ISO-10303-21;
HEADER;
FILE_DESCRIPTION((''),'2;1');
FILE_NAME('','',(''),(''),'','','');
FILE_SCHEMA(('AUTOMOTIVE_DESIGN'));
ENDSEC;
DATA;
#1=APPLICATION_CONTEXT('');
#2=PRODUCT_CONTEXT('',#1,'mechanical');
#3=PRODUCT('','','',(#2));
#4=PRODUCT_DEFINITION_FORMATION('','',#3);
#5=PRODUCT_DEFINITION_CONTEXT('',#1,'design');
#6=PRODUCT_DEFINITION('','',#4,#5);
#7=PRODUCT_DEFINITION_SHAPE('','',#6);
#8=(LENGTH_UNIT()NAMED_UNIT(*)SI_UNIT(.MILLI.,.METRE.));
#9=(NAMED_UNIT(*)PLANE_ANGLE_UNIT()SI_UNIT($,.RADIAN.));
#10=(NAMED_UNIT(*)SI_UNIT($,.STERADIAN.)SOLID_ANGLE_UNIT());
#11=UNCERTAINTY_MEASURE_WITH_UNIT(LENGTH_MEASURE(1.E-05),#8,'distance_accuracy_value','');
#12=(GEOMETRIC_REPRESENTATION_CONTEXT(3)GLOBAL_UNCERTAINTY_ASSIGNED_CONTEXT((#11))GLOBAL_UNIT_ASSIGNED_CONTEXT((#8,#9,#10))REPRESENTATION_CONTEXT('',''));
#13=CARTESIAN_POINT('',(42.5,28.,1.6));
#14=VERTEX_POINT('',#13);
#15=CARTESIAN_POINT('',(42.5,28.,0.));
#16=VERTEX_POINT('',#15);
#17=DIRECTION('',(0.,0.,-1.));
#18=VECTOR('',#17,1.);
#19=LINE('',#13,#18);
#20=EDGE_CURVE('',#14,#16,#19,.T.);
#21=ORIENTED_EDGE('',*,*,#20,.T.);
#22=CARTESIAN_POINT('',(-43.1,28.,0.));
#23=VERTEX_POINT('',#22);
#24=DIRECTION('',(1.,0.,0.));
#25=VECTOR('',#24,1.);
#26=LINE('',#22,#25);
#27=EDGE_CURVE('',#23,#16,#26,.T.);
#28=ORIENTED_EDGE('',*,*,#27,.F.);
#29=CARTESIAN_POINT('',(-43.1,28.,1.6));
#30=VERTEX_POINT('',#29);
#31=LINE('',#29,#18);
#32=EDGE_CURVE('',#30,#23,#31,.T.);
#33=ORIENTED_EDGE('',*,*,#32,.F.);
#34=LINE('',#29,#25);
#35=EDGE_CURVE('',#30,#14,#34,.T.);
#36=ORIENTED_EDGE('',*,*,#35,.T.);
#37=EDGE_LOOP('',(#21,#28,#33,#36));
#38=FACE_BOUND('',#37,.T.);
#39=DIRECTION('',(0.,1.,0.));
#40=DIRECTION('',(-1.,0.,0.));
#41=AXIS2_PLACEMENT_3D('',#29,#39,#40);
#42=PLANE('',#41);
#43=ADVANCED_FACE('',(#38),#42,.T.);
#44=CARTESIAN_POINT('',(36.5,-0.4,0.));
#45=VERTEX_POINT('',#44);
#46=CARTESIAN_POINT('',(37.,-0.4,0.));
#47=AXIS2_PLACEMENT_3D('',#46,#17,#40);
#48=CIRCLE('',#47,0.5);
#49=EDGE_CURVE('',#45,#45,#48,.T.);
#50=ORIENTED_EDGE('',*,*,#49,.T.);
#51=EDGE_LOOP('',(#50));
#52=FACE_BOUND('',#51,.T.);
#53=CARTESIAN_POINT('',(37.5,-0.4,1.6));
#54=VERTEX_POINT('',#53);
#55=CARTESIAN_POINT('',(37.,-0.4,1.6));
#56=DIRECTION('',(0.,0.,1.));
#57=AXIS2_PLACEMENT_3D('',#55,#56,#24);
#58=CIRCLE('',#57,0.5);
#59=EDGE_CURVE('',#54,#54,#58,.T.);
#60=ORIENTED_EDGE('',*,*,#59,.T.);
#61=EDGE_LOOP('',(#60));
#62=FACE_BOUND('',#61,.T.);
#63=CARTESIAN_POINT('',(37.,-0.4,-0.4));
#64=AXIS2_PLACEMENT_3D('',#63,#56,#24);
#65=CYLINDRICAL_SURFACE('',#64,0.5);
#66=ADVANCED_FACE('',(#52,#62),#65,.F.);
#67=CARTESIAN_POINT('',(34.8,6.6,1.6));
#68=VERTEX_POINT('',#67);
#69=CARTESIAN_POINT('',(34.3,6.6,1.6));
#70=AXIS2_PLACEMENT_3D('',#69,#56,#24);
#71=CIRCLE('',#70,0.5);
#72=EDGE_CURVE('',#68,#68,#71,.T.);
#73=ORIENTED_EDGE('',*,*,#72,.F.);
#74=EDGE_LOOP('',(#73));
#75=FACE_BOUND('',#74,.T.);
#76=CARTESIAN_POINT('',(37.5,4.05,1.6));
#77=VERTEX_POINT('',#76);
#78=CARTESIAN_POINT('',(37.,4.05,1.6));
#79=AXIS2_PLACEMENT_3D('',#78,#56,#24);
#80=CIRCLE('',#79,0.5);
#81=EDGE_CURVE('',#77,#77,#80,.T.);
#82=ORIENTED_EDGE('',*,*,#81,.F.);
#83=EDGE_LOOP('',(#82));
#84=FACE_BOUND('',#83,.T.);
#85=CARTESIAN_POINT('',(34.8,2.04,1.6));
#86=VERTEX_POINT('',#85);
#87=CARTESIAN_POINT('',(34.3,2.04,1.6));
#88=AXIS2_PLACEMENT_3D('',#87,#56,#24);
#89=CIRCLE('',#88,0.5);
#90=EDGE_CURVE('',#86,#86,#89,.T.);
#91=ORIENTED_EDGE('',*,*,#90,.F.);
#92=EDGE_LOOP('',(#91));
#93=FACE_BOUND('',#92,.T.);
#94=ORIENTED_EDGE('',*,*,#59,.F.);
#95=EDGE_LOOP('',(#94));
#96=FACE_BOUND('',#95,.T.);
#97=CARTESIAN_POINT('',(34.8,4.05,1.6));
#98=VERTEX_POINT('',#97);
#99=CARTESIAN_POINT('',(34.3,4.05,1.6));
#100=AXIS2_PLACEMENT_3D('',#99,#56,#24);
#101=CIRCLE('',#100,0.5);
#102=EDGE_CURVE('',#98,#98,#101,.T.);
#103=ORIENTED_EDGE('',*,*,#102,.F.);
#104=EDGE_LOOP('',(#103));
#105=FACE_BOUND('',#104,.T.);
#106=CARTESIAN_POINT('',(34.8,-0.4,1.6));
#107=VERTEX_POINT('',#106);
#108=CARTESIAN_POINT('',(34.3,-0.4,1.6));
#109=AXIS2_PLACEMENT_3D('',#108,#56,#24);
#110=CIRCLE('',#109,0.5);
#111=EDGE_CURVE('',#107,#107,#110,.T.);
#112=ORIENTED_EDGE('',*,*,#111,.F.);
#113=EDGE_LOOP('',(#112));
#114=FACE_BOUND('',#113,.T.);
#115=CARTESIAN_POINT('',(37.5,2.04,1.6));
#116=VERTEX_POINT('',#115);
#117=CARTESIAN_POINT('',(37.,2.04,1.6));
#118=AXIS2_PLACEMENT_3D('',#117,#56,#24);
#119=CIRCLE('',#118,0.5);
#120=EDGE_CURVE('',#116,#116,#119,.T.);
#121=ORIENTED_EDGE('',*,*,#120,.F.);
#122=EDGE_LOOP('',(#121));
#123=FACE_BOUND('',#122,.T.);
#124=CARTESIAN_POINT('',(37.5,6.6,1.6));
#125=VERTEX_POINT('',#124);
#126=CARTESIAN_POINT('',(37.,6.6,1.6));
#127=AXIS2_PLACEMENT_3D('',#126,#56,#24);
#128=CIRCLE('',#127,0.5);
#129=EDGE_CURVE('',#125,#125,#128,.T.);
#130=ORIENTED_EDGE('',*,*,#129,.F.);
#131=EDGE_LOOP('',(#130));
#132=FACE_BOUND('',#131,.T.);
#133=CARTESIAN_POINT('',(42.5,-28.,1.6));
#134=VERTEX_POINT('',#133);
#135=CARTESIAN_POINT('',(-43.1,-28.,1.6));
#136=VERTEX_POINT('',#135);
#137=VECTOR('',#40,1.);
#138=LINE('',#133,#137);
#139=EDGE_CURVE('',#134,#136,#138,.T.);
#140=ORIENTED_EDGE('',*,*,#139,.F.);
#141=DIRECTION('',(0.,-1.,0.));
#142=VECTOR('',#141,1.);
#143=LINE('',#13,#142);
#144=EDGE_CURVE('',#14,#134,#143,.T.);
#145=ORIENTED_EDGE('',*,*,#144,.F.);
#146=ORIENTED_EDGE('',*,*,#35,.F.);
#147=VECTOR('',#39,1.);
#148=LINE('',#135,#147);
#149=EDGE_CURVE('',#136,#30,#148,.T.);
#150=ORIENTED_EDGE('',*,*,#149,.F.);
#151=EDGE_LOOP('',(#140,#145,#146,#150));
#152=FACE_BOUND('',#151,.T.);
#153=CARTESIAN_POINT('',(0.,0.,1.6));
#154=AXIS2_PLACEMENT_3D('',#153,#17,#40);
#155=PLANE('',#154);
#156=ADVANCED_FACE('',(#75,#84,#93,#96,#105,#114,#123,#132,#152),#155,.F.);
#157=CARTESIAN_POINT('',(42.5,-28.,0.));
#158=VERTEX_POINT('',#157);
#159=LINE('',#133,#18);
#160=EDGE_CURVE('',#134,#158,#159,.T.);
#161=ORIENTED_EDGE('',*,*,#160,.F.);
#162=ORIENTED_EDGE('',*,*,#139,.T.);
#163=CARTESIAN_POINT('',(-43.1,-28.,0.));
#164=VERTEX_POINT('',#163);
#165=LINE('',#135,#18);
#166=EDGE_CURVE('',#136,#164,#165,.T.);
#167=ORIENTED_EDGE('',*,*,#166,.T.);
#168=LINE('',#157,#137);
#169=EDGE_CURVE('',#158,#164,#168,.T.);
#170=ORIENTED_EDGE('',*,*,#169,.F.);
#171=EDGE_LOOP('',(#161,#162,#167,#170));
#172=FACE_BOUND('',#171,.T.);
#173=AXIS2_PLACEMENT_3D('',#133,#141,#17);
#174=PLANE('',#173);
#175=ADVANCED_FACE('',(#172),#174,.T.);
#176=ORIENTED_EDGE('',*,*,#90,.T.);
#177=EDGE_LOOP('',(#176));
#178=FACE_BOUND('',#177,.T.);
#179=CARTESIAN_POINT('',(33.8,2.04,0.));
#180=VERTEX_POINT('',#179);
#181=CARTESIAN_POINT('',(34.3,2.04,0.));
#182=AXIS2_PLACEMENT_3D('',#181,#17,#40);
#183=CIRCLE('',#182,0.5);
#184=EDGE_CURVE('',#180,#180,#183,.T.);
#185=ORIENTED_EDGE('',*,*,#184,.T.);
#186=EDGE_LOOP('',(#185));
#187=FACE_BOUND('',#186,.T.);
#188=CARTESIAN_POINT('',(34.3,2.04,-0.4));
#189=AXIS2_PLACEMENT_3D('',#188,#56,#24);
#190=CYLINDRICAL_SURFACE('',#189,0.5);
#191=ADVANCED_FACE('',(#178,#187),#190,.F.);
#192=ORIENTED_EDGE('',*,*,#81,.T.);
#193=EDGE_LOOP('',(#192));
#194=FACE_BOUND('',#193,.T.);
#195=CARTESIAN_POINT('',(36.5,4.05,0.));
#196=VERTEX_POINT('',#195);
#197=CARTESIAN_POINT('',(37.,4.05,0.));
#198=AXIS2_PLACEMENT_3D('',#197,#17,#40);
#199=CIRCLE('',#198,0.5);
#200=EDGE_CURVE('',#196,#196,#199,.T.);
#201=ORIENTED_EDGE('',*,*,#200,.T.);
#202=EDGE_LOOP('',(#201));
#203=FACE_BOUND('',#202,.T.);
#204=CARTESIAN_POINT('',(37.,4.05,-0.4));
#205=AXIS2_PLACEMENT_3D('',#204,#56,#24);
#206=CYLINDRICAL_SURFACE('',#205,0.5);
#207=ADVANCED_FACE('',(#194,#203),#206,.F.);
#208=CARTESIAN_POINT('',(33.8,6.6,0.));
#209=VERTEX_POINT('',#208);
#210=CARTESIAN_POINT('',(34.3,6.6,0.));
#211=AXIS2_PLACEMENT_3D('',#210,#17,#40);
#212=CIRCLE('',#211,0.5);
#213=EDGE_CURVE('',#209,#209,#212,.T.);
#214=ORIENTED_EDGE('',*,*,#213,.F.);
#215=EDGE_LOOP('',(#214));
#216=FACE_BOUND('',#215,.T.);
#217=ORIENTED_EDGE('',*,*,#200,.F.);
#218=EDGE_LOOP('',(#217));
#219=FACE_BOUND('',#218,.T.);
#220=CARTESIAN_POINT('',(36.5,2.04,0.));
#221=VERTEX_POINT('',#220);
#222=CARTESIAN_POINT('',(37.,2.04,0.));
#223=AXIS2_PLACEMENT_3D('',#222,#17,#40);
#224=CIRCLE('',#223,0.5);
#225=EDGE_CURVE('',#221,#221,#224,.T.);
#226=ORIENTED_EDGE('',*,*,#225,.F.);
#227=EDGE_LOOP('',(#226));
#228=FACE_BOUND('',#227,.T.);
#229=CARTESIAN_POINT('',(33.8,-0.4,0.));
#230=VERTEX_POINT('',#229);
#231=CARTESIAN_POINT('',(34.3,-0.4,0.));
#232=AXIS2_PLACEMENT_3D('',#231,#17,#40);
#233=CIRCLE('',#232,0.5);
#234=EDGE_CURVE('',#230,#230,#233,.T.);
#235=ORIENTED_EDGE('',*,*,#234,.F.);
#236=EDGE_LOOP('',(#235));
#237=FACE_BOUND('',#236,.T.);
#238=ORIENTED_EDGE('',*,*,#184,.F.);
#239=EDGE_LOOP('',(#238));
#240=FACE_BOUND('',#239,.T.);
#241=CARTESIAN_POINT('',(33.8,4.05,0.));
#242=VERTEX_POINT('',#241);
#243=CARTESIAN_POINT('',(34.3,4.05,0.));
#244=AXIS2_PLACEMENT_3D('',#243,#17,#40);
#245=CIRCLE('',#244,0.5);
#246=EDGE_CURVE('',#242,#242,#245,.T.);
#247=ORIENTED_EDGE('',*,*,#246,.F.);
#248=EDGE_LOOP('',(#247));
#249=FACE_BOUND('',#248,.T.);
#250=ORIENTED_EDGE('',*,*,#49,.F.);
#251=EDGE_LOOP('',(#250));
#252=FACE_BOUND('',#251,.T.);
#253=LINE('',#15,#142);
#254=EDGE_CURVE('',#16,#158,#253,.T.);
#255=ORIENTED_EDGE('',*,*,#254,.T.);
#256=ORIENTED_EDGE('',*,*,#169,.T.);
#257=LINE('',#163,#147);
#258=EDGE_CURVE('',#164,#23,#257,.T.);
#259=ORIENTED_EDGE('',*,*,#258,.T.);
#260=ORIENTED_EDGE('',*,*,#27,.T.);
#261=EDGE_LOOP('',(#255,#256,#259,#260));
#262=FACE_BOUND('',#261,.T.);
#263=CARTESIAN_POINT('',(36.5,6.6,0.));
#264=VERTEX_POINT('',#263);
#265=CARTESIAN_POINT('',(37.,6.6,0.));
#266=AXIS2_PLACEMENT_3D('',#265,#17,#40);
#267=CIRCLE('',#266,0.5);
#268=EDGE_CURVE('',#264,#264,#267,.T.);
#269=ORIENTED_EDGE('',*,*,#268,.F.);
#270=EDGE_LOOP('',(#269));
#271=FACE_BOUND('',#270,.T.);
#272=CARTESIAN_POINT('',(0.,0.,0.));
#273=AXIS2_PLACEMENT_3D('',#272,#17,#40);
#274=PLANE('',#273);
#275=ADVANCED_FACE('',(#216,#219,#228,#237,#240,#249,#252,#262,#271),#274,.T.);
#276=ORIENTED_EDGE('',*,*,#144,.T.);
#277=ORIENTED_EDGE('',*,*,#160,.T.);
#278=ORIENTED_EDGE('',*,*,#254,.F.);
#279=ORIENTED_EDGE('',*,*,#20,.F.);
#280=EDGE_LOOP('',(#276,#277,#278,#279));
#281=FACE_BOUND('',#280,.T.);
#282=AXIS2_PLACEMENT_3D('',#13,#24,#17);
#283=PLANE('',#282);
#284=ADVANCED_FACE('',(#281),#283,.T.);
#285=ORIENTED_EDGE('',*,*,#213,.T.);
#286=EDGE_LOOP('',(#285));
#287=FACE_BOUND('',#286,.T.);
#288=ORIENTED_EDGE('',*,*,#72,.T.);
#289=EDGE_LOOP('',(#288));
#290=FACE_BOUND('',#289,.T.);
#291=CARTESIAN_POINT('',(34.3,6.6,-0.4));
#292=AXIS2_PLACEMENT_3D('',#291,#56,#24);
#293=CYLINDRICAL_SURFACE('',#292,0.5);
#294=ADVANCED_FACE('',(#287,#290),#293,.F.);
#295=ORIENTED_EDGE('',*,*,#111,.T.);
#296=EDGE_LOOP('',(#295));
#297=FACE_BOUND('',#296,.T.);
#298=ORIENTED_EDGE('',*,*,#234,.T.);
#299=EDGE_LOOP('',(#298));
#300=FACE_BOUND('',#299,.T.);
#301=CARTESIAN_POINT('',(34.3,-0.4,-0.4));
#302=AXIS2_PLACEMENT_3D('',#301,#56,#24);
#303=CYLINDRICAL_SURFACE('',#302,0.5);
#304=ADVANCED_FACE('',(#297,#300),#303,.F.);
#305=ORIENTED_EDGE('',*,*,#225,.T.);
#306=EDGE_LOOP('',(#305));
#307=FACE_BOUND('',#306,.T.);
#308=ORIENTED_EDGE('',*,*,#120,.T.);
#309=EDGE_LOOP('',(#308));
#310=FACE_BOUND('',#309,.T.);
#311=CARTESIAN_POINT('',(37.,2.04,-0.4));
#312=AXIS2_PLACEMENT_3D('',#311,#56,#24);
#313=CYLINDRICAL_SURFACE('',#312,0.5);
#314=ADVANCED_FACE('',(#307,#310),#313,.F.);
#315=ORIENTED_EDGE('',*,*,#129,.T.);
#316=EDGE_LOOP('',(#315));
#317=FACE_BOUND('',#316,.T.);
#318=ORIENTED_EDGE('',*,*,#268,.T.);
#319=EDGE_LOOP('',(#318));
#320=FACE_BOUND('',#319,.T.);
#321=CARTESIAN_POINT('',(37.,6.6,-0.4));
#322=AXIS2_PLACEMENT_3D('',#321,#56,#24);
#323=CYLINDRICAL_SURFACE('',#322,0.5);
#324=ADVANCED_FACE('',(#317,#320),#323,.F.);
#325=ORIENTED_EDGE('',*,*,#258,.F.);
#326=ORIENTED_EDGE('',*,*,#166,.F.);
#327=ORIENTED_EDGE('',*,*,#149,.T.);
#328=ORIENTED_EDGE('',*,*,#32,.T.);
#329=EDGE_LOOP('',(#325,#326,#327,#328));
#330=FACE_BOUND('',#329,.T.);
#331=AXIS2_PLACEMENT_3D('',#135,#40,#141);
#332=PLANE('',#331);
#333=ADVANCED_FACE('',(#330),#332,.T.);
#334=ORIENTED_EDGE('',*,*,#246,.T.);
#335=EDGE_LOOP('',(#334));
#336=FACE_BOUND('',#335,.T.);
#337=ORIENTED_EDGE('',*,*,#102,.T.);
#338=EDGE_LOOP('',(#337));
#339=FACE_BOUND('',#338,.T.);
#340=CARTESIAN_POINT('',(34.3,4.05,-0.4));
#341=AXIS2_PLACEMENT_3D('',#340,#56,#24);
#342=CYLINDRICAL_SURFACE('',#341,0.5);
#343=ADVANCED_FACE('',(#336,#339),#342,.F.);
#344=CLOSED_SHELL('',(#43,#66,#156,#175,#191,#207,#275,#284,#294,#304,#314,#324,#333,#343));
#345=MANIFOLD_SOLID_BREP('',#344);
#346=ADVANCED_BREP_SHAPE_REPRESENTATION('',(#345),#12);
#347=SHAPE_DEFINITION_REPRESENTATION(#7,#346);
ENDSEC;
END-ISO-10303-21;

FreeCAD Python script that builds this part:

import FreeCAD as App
import Part
import Sketcher

V = App.Vector
Q = App.Units.Quantity


def add_polygon(sketch, points):
    """Adds a closed chain of lines whose ends are joined by coincident constraints."""
    first, n = sketch.GeometryCount, len(points)
    for a, b in zip(points, points[1:] + points[:1]):
        sketch.addGeometry(Part.LineSegment(App.Vector(*a, 0), App.Vector(*b, 0)), False)
    for i in range(n):
        sketch.addConstraint(Sketcher.Constraint("Coincident", first + i, 2, first + (i + 1) % n, 1))

doc = App.newDocument("Part")
body = doc.addObject("PartDesign::Body", "Body")

sketch1 = body.newObject("Sketcher::SketchObject", "Sketch")
sketch1.AttachmentSupport = (doc.getObject("XY_Plane"), [""])
sketch1.MapMode = "FlatFace"
add_polygon(sketch1, [(42, 28), (42, -28), (-43, -28), (-43, 28)])
sketch1.addConstraint(Sketcher.Constraint("Vertical", 0))
sketch1.addConstraint(Sketcher.Constraint("Horizontal", 1))
sketch1.addConstraint(Sketcher.Constraint("Vertical", 2))
sketch1.addConstraint(Sketcher.Constraint("Horizontal", 3))
sketch1.addConstraint(Sketcher.Constraint("DistanceY", 0, 2, 0, 1, Q("56 mm")))
sketch1.addConstraint(Sketcher.Constraint("DistanceX", 1, 2, 1, 1, Q("85.6 mm")))
sketch1.addConstraint(Sketcher.Constraint("DistanceY", 0, 2, -1, 1, Q("28 mm")))
sketch1.addConstraint(Sketcher.Constraint("DistanceX", -1, 1, 0, 2, Q("42.5 mm")))
pad1 = body.newObject("PartDesign::Pad", "Pad")
pad1.Profile = sketch1
pad1.Length = 1.6

sketch2 = body.newObject("Sketcher::SketchObject", "Sketch001")
sketch2.AttachmentSupport = (doc.getObject("XY_Plane"), [""])
sketch2.MapMode = "FlatFace"
sketch2.AttachmentOffset = App.Placement(V(0, 0, 1.6), App.Rotation())
sketch2.addGeometry(Part.Circle(V(37, 6.6, 0), V(0, 0, 1), 0.5), False)
sketch2.addGeometry(Part.Circle(V(34.3, 6.6, 0), V(0, 0, 1), 0.5), False)
sketch2.addGeometry(Part.Circle(V(34.3, 4, 0), V(0, 0, 1), 0.5), False)
sketch2.addGeometry(Part.Circle(V(34.3, 2, 0), V(0, 0, 1), 0.5), False)
sketch2.addGeometry(Part.Circle(V(34.3, -0.4, 0), V(0, 0, 1), 0.5), False)
sketch2.addGeometry(Part.Circle(V(37, 4, 0), V(0, 0, 1), 0.5), False)
sketch2.addGeometry(Part.Circle(V(37, 2, 0), V(0, 0, 1), 0.5), False)
sketch2.addGeometry(Part.Circle(V(37, -0.4, 0), V(0, 0, 1), 0.5), False)
sketch2.addConstraint(Sketcher.Constraint("Equal", 0, 1))
sketch2.addConstraint(Sketcher.Constraint("Equal", 1, 2))
sketch2.addConstraint(Sketcher.Constraint("Equal", 2, 3))
sketch2.addConstraint(Sketcher.Constraint("Equal", 3, 4))
sketch2.addConstraint(Sketcher.Constraint("Equal", 4, 5))
sketch2.addConstraint(Sketcher.Constraint("Equal", 5, 6))
sketch2.addConstraint(Sketcher.Constraint("Equal", 6, 7))
sketch2.addConstraint(Sketcher.Constraint("Horizontal", 0, 3, 1, 3))
sketch2.addConstraint(Sketcher.Constraint("Horizontal", 2, 3, 5, 3))
sketch2.addConstraint(Sketcher.Constraint("Horizontal", 3, 3, 6, 3))
sketch2.addConstraint(Sketcher.Constraint("Horizontal", 4, 3, 7, 3))
sketch2.addConstraint(Sketcher.Constraint("Vertical", 1, 3, 2, 3))
sketch2.addConstraint(Sketcher.Constraint("Vertical", 2, 3, 3, 3))
sketch2.addConstraint(Sketcher.Constraint("Vertical", 3, 3, 4, 3))
sketch2.addConstraint(Sketcher.Constraint("Vertical", 0, 3, 5, 3))
sketch2.addConstraint(Sketcher.Constraint("Vertical", 5, 3, 6, 3))
sketch2.addConstraint(Sketcher.Constraint("Vertical", 6, 3, 7, 3))
sketch2.addConstraint(Sketcher.Constraint("Diameter", 0, Q("1 mm")))
sketch2.addConstraint(Sketcher.Constraint("DistanceX", -1, 1, 0, 3, Q("37 mm")))
sketch2.addConstraint(Sketcher.Constraint("DistanceY", 4, 3, 1, 3, Q("7 mm")))
sketch2.addConstraint(Sketcher.Constraint("DistanceY", -1, 1, 0, 3, Q("6.6 mm")))
sketch2.addConstraint(Sketcher.Constraint("DistanceX", -1, 1, 1, 3, Q("34.3 mm")))
sketch2.addConstraint(Sketcher.Constraint("DistanceY", -1, 1, 2, 3, Q("4.05 mm")))
sketch2.addConstraint(Sketcher.Constraint("DistanceY", -1, 1, 3, 3, Q("2.04 mm")))
pocket1 = body.newObject("PartDesign::Pocket", "Pocket")
pocket1.Profile = sketch2
pocket1.Length = 2

doc.recompute()
